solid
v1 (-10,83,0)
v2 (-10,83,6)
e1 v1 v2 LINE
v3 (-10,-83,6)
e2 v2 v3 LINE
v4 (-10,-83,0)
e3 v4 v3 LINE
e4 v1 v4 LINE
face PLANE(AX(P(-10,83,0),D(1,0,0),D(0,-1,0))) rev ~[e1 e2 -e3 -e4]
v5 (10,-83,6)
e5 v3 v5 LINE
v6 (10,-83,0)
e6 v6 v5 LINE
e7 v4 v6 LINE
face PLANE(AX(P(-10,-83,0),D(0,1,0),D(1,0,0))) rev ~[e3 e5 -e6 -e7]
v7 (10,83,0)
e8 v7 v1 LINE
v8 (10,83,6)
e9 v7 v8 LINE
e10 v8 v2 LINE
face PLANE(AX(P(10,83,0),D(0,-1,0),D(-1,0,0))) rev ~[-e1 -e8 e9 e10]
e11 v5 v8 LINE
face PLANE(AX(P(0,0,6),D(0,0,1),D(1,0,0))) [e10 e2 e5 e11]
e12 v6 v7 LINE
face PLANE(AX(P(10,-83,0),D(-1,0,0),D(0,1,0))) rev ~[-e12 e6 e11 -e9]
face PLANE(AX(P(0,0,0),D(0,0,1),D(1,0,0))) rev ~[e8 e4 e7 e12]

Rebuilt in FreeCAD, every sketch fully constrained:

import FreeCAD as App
import Part
import Sketcher


def add_polygon(sketch, points):
    """Adds a closed chain of lines whose ends are joined by coincident constraints."""
    first, n = sketch.GeometryCount, len(points)
    for a, b in zip(points, points[1:] + points[:1]):
        sketch.addGeometry(Part.LineSegment(App.Vector(*a, 0), App.Vector(*b, 0)), False)
    for i in range(n):
        sketch.addConstraint(Sketcher.Constraint("Coincident", first + i, 2, first + (i + 1) % n, 1))

doc = App.newDocument("Part")
body = doc.addObject("PartDesign::Body", "Body")

# Sketch on XY plane
sketch1 = body.newObject("Sketcher::SketchObject", "Sketch")
sketch1.AttachmentSupport = (doc.getObject("XY_Plane"), [""])
sketch1.MapMode = "FlatFace"
add_polygon(sketch1, [(-10, 83), (-10, -83), (10, -83), (10, 83)])  # lines 0-3
sketch1.addConstraint([
    Sketcher.Constraint("Vertical", 0),
    Sketcher.Constraint("Horizontal", 1),
    Sketcher.Constraint("Vertical", 2),
    Sketcher.Constraint("Horizontal", 3),
    Sketcher.Constraint("Symmetric", 0, 2, 2, 2, -1, 1),
    Sketcher.Constraint("DistanceX", 1, 1, 1, 2, 20.0),
    Sketcher.Constraint("DistanceY", 0, 2, 0, 1, 166.0),
])
pad1 = body.newObject("PartDesign::Pad", "Pad")
pad1.Profile = sketch1
pad1.Length = 6

doc.recompute()
